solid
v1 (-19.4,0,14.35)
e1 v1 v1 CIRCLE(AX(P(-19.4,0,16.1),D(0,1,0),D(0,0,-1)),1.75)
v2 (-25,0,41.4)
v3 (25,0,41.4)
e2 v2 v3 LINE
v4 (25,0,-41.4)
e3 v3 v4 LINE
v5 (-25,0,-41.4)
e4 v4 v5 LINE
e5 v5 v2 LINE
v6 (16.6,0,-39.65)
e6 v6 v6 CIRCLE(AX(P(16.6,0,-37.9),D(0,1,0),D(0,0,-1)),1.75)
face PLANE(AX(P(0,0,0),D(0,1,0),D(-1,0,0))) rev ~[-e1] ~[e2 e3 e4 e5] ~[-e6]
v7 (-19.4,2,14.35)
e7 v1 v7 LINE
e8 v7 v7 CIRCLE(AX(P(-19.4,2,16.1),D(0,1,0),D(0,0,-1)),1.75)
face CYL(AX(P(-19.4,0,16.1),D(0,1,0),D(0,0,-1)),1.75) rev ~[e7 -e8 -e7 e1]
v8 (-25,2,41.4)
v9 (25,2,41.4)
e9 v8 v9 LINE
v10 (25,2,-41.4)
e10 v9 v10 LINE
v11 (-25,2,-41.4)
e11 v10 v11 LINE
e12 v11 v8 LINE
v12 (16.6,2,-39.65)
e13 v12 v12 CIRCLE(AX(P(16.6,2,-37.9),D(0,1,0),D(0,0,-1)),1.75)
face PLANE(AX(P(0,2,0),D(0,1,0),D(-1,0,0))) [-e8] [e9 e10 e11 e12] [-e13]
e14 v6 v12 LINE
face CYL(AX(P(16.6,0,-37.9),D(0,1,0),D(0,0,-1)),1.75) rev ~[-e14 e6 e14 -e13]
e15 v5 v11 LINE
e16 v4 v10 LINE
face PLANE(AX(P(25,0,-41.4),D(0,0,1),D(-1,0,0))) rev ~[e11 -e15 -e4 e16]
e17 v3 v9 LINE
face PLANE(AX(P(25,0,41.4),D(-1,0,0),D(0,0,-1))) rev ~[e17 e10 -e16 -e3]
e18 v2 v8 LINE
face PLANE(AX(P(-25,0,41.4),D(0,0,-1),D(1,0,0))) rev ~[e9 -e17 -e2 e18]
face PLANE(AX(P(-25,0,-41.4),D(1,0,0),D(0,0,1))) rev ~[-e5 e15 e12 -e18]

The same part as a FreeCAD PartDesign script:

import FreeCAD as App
import Part
import Sketcher
from FreeCAD import Vector

doc = App.newDocument("Part")
body = doc.addObject("PartDesign::Body", "Body")

# Sketch on XZ plane
sketch1 = doc.addObject("Sketcher::SketchObject", "Sketch")
body.addObject(sketch1)
sketch1.AttachmentSupport = (doc.XZ_Plane, [""])
sketch1.MapMode = "FlatFace"
sketch1.addGeometry([
    Part.LineSegment(Vector(25, 41, 0), Vector(25, -41, 0)),
    Part.LineSegment(Vector(25, -41, 0), Vector(-25, -41, 0)),
    Part.LineSegment(Vector(-25, -41, 0), Vector(-25, 41, 0)),
    Part.LineSegment(Vector(-25, 41, 0), Vector(25, 41, 0)),
], False)
sketch1.addConstraint([
    Sketcher.Constraint("Coincident", 0, 2, 1, 1),
    Sketcher.Constraint("Coincident", 1, 2, 2, 1),
    Sketcher.Constraint("Coincident", 2, 2, 3, 1),
    Sketcher.Constraint("Coincident", 3, 2, 0, 1),
    Sketcher.Constraint("Vertical", 0),
    Sketcher.Constraint("Horizontal", 1),
    Sketcher.Constraint("Vertical", 2),
    Sketcher.Constraint("Horizontal", 3),
    Sketcher.Constraint("Symmetric", 0, 2, 2, 2, -1, 1),
    Sketcher.Constraint("DistanceX", 1, 2, 1, 1, 50.0),
    Sketcher.Constraint("DistanceY", 0, 2, 0, 1, 82.8),
])
pad1 = doc.addObject("PartDesign::Pad", "Pad")
body.addObject(pad1)
pad1.Profile = sketch1
pad1.Length = 2
pad1.Reversed = True

# Sketch on XZ plane
sketch2 = doc.addObject("Sketcher::SketchObject", "Sketch001")
body.addObject(sketch2)
sketch2.AttachmentSupport = (doc.XZ_Plane, [""])
sketch2.MapMode = "FlatFace"
sketch2.addGeometry([
    Part.Circle(Vector(16.6, -37.9, 0), Vector(0, 0, 1), 1.8),
    Part.Circle(Vector(-19.4, 16.1, 0), Vector(0, 0, 1), 1.8),
], False)
sketch2.addConstraint([
    Sketcher.Constraint("Equal", 0, 1),
    Sketcher.Constraint("Diameter", 0, 3.5),
    Sketcher.Constraint("DistanceX", 1, 3, 0, 3, 36.0),
    Sketcher.Constraint("DistanceY", 0, 3, 1, 3, 54.0),
    Sketcher.Constraint("DistanceX", -1, 1, 0, 3, 16.6),
    Sketcher.Constraint("DistanceY", 0, 3, -1, 1, 37.9),
])
doc.recompute()
hole = doc.addObject("PartDesign::Hole", "Hole")
body.addObject(hole)
hole.Profile = sketch2
hole.ThreadType = "None"
hole.Diameter = 3.5
hole.DepthType = "ThroughAll"

doc.recompute()
